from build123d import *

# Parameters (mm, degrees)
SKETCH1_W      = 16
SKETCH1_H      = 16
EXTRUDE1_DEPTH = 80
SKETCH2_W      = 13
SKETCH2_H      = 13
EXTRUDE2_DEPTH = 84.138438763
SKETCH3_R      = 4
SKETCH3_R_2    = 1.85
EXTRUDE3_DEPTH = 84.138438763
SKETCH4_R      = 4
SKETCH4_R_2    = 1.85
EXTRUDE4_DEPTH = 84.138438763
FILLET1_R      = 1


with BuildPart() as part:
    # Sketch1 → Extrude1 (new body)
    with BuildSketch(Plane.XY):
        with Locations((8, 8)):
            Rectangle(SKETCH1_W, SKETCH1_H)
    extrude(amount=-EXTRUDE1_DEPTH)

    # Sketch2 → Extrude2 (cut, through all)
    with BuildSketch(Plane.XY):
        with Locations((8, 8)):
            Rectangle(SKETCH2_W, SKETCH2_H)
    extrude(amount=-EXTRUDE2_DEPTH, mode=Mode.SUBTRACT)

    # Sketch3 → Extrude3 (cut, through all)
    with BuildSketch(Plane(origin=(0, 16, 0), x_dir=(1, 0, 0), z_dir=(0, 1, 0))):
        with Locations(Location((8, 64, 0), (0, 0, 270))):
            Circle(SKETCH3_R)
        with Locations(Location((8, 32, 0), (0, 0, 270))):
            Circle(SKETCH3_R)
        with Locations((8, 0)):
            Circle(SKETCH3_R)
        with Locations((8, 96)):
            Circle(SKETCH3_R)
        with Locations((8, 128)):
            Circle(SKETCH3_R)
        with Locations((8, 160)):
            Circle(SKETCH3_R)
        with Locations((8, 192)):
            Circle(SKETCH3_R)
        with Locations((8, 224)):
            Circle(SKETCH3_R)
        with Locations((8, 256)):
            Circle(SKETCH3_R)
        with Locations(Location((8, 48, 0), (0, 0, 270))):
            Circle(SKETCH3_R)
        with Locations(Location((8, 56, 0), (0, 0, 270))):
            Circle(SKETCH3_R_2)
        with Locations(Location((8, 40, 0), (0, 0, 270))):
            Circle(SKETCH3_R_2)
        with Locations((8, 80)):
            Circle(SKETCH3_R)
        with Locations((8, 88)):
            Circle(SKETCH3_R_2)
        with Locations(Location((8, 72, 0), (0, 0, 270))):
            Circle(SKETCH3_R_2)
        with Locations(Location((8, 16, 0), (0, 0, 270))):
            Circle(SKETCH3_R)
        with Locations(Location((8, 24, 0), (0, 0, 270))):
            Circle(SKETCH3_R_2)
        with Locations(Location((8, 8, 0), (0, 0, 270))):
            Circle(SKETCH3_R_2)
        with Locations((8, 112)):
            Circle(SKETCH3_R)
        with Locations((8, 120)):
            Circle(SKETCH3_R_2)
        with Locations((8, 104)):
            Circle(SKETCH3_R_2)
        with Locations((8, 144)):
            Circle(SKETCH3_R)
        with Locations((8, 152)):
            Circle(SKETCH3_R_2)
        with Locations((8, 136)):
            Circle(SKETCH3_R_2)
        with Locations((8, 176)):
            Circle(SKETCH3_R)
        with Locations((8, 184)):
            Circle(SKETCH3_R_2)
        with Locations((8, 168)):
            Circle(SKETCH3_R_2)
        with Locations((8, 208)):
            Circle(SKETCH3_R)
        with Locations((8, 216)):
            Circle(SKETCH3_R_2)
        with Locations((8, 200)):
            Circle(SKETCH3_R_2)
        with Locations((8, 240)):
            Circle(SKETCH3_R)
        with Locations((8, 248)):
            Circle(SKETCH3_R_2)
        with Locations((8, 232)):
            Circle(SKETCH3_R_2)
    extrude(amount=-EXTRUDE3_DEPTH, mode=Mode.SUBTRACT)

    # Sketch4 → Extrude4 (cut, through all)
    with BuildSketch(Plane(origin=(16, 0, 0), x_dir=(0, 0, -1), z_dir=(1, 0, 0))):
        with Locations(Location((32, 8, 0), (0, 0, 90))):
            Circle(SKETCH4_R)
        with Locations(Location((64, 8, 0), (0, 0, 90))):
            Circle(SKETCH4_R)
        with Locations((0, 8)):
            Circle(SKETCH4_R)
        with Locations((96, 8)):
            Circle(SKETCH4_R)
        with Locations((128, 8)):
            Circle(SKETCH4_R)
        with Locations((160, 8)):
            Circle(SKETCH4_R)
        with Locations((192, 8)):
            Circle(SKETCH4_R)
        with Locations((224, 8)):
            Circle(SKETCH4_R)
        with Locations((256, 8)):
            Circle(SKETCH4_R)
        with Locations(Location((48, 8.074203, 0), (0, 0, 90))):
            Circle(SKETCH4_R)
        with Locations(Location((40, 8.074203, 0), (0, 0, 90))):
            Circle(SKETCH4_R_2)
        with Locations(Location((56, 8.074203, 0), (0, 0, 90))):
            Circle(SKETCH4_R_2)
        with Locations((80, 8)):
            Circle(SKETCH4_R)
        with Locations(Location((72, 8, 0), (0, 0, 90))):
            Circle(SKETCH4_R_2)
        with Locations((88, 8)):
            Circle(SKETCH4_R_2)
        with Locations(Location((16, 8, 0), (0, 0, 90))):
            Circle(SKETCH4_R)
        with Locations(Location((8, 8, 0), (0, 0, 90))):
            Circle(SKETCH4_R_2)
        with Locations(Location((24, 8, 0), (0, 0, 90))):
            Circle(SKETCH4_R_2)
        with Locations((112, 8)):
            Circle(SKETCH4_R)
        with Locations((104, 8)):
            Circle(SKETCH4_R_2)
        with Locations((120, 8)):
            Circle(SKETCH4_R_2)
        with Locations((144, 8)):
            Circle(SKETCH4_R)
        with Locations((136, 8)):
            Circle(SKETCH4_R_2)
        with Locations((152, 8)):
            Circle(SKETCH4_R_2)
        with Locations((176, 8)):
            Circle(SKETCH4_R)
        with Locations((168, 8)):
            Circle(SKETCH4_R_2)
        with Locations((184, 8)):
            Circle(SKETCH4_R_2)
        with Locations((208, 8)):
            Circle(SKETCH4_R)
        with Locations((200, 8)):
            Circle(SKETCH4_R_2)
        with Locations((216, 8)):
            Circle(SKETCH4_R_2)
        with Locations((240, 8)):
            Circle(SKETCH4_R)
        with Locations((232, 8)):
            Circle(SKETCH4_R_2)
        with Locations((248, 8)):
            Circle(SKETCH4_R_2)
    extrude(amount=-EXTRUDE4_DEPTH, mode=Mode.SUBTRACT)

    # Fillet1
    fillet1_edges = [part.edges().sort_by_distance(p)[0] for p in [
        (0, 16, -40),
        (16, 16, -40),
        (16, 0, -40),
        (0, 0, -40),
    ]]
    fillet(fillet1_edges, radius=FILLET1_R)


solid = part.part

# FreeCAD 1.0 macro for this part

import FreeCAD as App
import Part
import Sketcher


def edges_at(feature, points):
    """Names of the edges that pass closest to the given points."""
    edges = feature.Shape.Edges
    near = lambda p: min(range(len(edges)), key=lambda i: edges[i].distToShape(Part.Vertex(*p))[0])
    return sorted({f"Edge{near(p) + 1}" for p in points})

doc = App.newDocument("Part")
body = doc.addObject("PartDesign::Body", "Body")

sketch1 = doc.addObject("Sketcher::SketchObject", "Sketch")
body.addObject(sketch1)
sketch1.AttachmentSupport = (doc.XY_Plane, [""])
sketch1.MapMode = "FlatFace"
sketch1.addGeometry([
    Part.LineSegment(App.Vector(0, 16, 0), App.Vector(0, 0, 0)),
    Part.LineSegment(App.Vector(0, 0, 0), App.Vector(16, 0, 0)),
    Part.LineSegment(App.Vector(16, 0, 0), App.Vector(16, 16, 0)),
    Part.LineSegment(App.Vector(16, 16, 0), App.Vector(0, 16, 0)),
], False)
sketch1.addConstraint([
    Sketcher.Constraint("Coincident", 0, 2, 1, 1),
    Sketcher.Constraint("Coincident", 1, 2, 2, 1),
    Sketcher.Constraint("Coincident", 2, 2, 3, 1),
    Sketcher.Constraint("Coincident", 3, 2, 0, 1),
    Sketcher.Constraint("Vertical", 0),
    Sketcher.Constraint("Horizontal", 1),
    Sketcher.Constraint("Vertical", 2),
    Sketcher.Constraint("Horizontal", 3),
    Sketcher.Constraint("Coincident", 0, 2, -1, 1),
    Sketcher.Constraint("Equal", 3, 0),
    Sketcher.Constraint("DistanceX", 1, 1, 1, 2, 16.0),
])
pad1 = doc.addObject("PartDesign::Pad", "Pad")
body.addObject(pad1)
pad1.Profile = sketch1
pad1.Length = 80
pad1.Reversed = True

sketch2 = doc.addObject("Sketcher::SketchObject", "Sketch001")
body.addObject(sketch2)
sketch2.AttachmentSupport = (doc.XY_Plane, [""])
sketch2.MapMode = "FlatFace"
sketch2.addGeometry([
    Part.LineSegment(App.Vector(1.5, 14.5, 0), App.Vector(1.5, 1.5, 0)),
    Part.LineSegment(App.Vector(1.5, 1.5, 0), App.Vector(14.5, 1.5, 0)),
    Part.LineSegment(App.Vector(14.5, 1.5, 0), App.Vector(14.5, 14.5, 0)),
    Part.LineSegment(App.Vector(14.5, 14.5, 0), App.Vector(1.5, 14.5, 0)),
], False)
sketch2.addConstraint([
    Sketcher.Constraint("Coincident", 0, 2, 1, 1),
    Sketcher.Constraint("Coincident", 1, 2, 2, 1),
    Sketcher.Constraint("Coincident", 2, 2, 3, 1),
    Sketcher.Constraint("Coincident", 3, 2, 0, 1),
    Sketcher.Constraint("Vertical", 0),
    Sketcher.Constraint("Horizontal", 1),
    Sketcher.Constraint("Vertical", 2),
    Sketcher.Constraint("Horizontal", 3),
    Sketcher.Constraint("Equal", 3, 0),
    Sketcher.Constraint("DistanceX", 1, 1, 1, 2, 13.0),
    Sketcher.Constraint("DistanceX", -1, 1, 0, 2, 1.5),
    Sketcher.Constraint("DistanceY", -1, 1, 0, 2, 1.5),
])
pocket1 = doc.addObject("PartDesign::Pocket", "Pocket")
body.addObject(pocket1)
pocket1.Profile = sketch2
pocket1.Type = "ThroughAll"

sketch3 = doc.addObject("Sketcher::SketchObject", "Sketch002")
body.addObject(sketch3)
sketch3.AttachmentSupport = (doc.XZ_Plane, [""])
sketch3.MapMode = "FlatFace"
sketch3.AttachmentOffset = App.Placement(App.Vector(0, 0, -16), App.Rotation())
sketch3.addGeometry([
    Part.Circle(App.Vector(8, -64, 0), App.Vector(0, 0, 1), 4),
    Part.Circle(App.Vector(8, -32, 0), App.Vector(0, 0, 1), 4),
    Part.Circle(App.Vector(8, 0, 0), App.Vector(0, 0, 1), 4),
    Part.Circle(App.Vector(8, -96, 0), App.Vector(0, 0, 1), 4),
    Part.Circle(App.Vector(8, -128, 0), App.Vector(0, 0, 1), 4),
    Part.Circle(App.Vector(8, -160, 0), App.Vector(0, 0, 1), 4),
    Part.Circle(App.Vector(8, -192, 0), App.Vector(0, 0, 1), 4),
    Part.Circle(App.Vector(8, -224, 0), App.Vector(0, 0, 1), 4),
    Part.Circle(App.Vector(8, -256, 0), App.Vector(0, 0, 1), 4),
    Part.Circle(App.Vector(8, -48, 0), App.Vector(0, 0, 1), 4),
    Part.Circle(App.Vector(8, -56, 0), App.Vector(0, 0, 1), 1.85),
    Part.Circle(App.Vector(8, -40, 0), App.Vector(0, 0, 1), 1.85),
    Part.Circle(App.Vector(8, -80, 0), App.Vector(0, 0, 1), 4),
    Part.Circle(App.Vector(8, -88, 0), App.Vector(0, 0, 1), 1.85),
    Part.Circle(App.Vector(8, -72, 0), App.Vector(0, 0, 1), 1.85),
    Part.Circle(App.Vector(8, -16, 0), App.Vector(0, 0, 1), 4),
    Part.Circle(App.Vector(8, -24, 0), App.Vector(0, 0, 1), 1.85),
    Part.Circle(App.Vector(8, -8, 0), App.Vector(0, 0, 1), 1.85),
    Part.Circle(App.Vector(8, -112, 0), App.Vector(0, 0, 1), 4),
    Part.Circle(App.Vector(8, -120, 0), App.Vector(0, 0, 1), 1.85),
    Part.Circle(App.Vector(8, -104, 0), App.Vector(0, 0, 1), 1.85),
    Part.Circle(App.Vector(8, -144, 0), App.Vector(0, 0, 1), 4),
    Part.Circle(App.Vector(8, -152, 0), App.Vector(0, 0, 1), 1.85),
    Part.Circle(App.Vector(8, -136, 0), App.Vector(0, 0, 1), 1.85),
    Part.Circle(App.Vector(8, -176, 0), App.Vector(0, 0, 1), 4),
    Part.Circle(App.Vector(8, -184, 0), App.Vector(0, 0, 1), 1.85),
    Part.Circle(App.Vector(8, -168, 0), App.Vector(0, 0, 1), 1.85),
    Part.Circle(App.Vector(8, -208, 0), App.Vector(0, 0, 1), 4),
    Part.Circle(App.Vector(8, -216, 0), App.Vector(0, 0, 1), 1.85),
    Part.Circle(App.Vector(8, -200, 0), App.Vector(0, 0, 1), 1.85),
    Part.Circle(App.Vector(8, -240, 0), App.Vector(0, 0, 1), 4),
    Part.Circle(App.Vector(8, -248, 0), App.Vector(0, 0, 1), 1.85),
    Part.Circle(App.Vector(8, -232, 0), App.Vector(0, 0, 1), 1.85),
], False)
sketch3.addConstraint([
    Sketcher.Constraint("Equal", 0, 1),
    Sketcher.Constraint("Equal", 1, 2),
    Sketcher.Constraint("Equal", 2, 3),
    Sketcher.Constraint("Equal", 3, 4),
    Sketcher.Constraint("Equal", 4, 5),
    Sketcher.Constraint("Equal", 5, 6),
    Sketcher.Constraint("Equal", 6, 7),
    Sketcher.Constraint("Equal", 7, 8),
    Sketcher.Constraint("Equal", 8, 9),
    Sketcher.Constraint("Equal", 10, 11),
    Sketcher.Constraint("Equal", 9, 12),
    Sketcher.Constraint("Equal", 11, 13),
    Sketcher.Constraint("Equal", 13, 14),
    Sketcher.Constraint("Equal", 12, 15),
    Sketcher.Constraint("Equal", 14, 16),
    Sketcher.Constraint("Equal", 16, 17),
    Sketcher.Constraint("Equal", 15, 18),
    Sketcher.Constraint("Equal", 17, 19),
    Sketcher.Constraint("Equal", 19, 20),
    Sketcher.Constraint("Equal", 18, 21),
    Sketcher.Constraint("Equal", 20, 22),
    Sketcher.Constraint("Equal", 22, 23),
    Sketcher.Constraint("Equal", 21, 24),
    Sketcher.Constraint("Equal", 23, 25),
    Sketcher.Constraint("Equal", 25, 26),
    Sketcher.Constraint("Equal", 24, 27),
    Sketcher.Constraint("Equal", 26, 28),
    Sketcher.Constraint("Equal", 28, 29),
    Sketcher.Constraint("Equal", 27, 30),
    Sketcher.Constraint("Equal", 29, 31),
    Sketcher.Constraint("Equal", 31, 32),
    Sketcher.Constraint("PointOnObject", 2, 3, -1),
    Sketcher.Constraint("Vertical", 0, 3, 1, 3),
    Sketcher.Constraint("Vertical", 1, 3, 2, 3),
    Sketcher.Constraint("Vertical", 2, 3, 3, 3),
    Sketcher.Constraint("Vertical", 3, 3, 4, 3),
    Sketcher.Constraint("Vertical", 4, 3, 5, 3),
    Sketcher.Constraint("Vertical", 5, 3, 6, 3),
    Sketcher.Constraint("Vertical", 6, 3, 7, 3),
    Sketcher.Constraint("Vertical", 7, 3, 8, 3),
    Sketcher.Constraint("Vertical", 8, 3, 9, 3),
    Sketcher.Constraint("Vertical", 9, 3, 10, 3),
    Sketcher.Constraint("Vertical", 10, 3, 11, 3),
    Sketcher.Constraint("Vertical", 11, 3, 12, 3),
    Sketcher.Constraint("Vertical", 12, 3, 13, 3),
    Sketcher.Constraint("Vertical", 13, 3, 14, 3),
    Sketcher.Constraint("Vertical", 14, 3, 15, 3),
    Sketcher.Constraint("Vertical", 15, 3, 16, 3),
    Sketcher.Constraint("Vertical", 16, 3, 17, 3),
    Sketcher.Constraint("Vertical", 17, 3, 18, 3),
    Sketcher.Constraint("Vertical", 18, 3, 19, 3),
    Sketcher.Constraint("Vertical", 19, 3, 20, 3),
    Sketcher.Constraint("Vertical", 20, 3, 21, 3),
    Sketcher.Constraint("Vertical", 21, 3, 22, 3),
    Sketcher.Constraint("Vertical", 22, 3, 23, 3),
    Sketcher.Constraint("Vertical", 23, 3, 24, 3),
    Sketcher.Constraint("Vertical", 24, 3, 25, 3),
    Sketcher.Constraint("Vertical", 25, 3, 26, 3),
    Sketcher.Constraint("Vertical", 26, 3, 27, 3),
    Sketcher.Constraint("Vertical", 27, 3, 28, 3),
    Sketcher.Constraint("Vertical", 28, 3, 29, 3),
    Sketcher.Constraint("Vertical", 29, 3, 30, 3),
    Sketcher.Constraint("Vertical", 30, 3, 31, 3),
    Sketcher.Constraint("Vertical", 31, 3, 32, 3),
    Sketcher.Constraint("Diameter", 0, 8.0),
    Sketcher.Constraint("Diameter", 10, 3.7),
    Sketcher.Constraint("DistanceX", -1, 1, 0, 3, 8.0),
    Sketcher.Constraint("DistanceY", 0, 3, -1, 1, 64.0),
    Sketcher.Constraint("DistanceY", 1, 3, -1, 1, 32.0),
    Sketcher.Constraint("DistanceY", 3, 3, -1, 1, 96.0),
    Sketcher.Constraint("DistanceY", 4, 3, -1, 1, 128.0),
    Sketcher.Constraint("DistanceY", 5, 3, -1, 1, 160.0),
    Sketcher.Constraint("DistanceY", 6, 3, -1, 1, 192.0),
    Sketcher.Constraint("DistanceY", 7, 3, -1, 1, 224.0),
    Sketcher.Constraint("DistanceY", 8, 3, -1, 1, 256.0),
    Sketcher.Constraint("DistanceY", 9, 3, -1, 1, 48.0),
    Sketcher.Constraint("DistanceY", 10, 3, -1, 1, 56.0),
    Sketcher.Constraint("DistanceY", 11, 3, -1, 1, 40.0),
    Sketcher.Constraint("DistanceY", 12, 3, -1, 1, 80.0),
    Sketcher.Constraint("DistanceY", 13, 3, -1, 1, 88.0),
    Sketcher.Constraint("DistanceY", 14, 3, -1, 1, 72.0),
    Sketcher.Constraint("DistanceY", 15, 3, -1, 1, 16.0),
    Sketcher.Constraint("DistanceY", 16, 3, -1, 1, 24.0),
    Sketcher.Constraint("DistanceY", 17, 3, -1, 1, 8.0),
    Sketcher.Constraint("DistanceY", 18, 3, -1, 1, 112.0),
    Sketcher.Constraint("DistanceY", 19, 3, -1, 1, 120.0),
    Sketcher.Constraint("DistanceY", 20, 3, -1, 1, 104.0),
    Sketcher.Constraint("DistanceY", 21, 3, -1, 1, 144.0),
    Sketcher.Constraint("DistanceY", 22, 3, -1, 1, 152.0),
    Sketcher.Constraint("DistanceY", 23, 3, -1, 1, 136.0),
    Sketcher.Constraint("DistanceY", 24, 3, -1, 1, 176.0),
    Sketcher.Constraint("DistanceY", 25, 3, -1, 1, 184.0),
    Sketcher.Constraint("DistanceY", 26, 3, -1, 1, 168.0),
    Sketcher.Constraint("DistanceY", 27, 3, -1, 1, 208.0),
    Sketcher.Constraint("DistanceY", 28, 3, -1, 1, 216.0),
    Sketcher.Constraint("DistanceY", 29, 3, -1, 1, 200.0),
    Sketcher.Constraint("DistanceY", 30, 3, -1, 1, 240.0),
    Sketcher.Constraint("DistanceY", 31, 3, -1, 1, 248.0),
    Sketcher.Constraint("DistanceY", 32, 3, -1, 1, 232.0),
])
pocket2 = doc.addObject("PartDesign::Pocket", "Pocket001")
body.addObject(pocket2)
pocket2.Profile = sketch3
pocket2.Type = "ThroughAll"
pocket2.Reversed = True

sketch4 = doc.addObject("Sketcher::SketchObject", "Sketch003")
body.addObject(sketch4)
sketch4.AttachmentSupport = (doc.YZ_Plane, [""])
sketch4.MapMode = "FlatFace"
sketch4.AttachmentOffset = App.Placement(App.Vector(0, 0, 16), App.Rotation())
sketch4.addGeometry([
    Part.Circle(App.Vector(8, -32, 0), App.Vector(0, 0, 1), 4),
    Part.Circle(App.Vector(8, -64, 0), App.Vector(0, 0, 1), 4),
    Part.Circle(App.Vector(8, 0, 0), App.Vector(0, 0, 1), 4),
    Part.Circle(App.Vector(8, -96, 0), App.Vector(0, 0, 1), 4),
    Part.Circle(App.Vector(8, -128, 0), App.Vector(0, 0, 1), 4),
    Part.Circle(App.Vector(8, -160, 0), App.Vector(0, 0, 1), 4),
    Part.Circle(App.Vector(8, -192, 0), App.Vector(0, 0, 1), 4),
    Part.Circle(App.Vector(8, -224, 0), App.Vector(0, 0, 1), 4),
    Part.Circle(App.Vector(8, -256, 0), App.Vector(0, 0, 1), 4),
    Part.Circle(App.Vector(8.074203, -48, 0), App.Vector(0, 0, 1), 4),
    Part.Circle(App.Vector(8.074203, -40, 0), App.Vector(0, 0, 1), 1.85),
    Part.Circle(App.Vector(8.074203, -56, 0), App.Vector(0, 0, 1), 1.85),
    Part.Circle(App.Vector(8, -80, 0), App.Vector(0, 0, 1), 4),
    Part.Circle(App.Vector(8, -72, 0), App.Vector(0, 0, 1), 1.85),
    Part.Circle(App.Vector(8, -88, 0), App.Vector(0, 0, 1), 1.85),
    Part.Circle(App.Vector(8, -16, 0), App.Vector(0, 0, 1), 4),
    Part.Circle(App.Vector(8, -8, 0), App.Vector(0, 0, 1), 1.85),
    Part.Circle(App.Vector(8, -24, 0), App.Vector(0, 0, 1), 1.85),
    Part.Circle(App.Vector(8, -112, 0), App.Vector(0, 0, 1), 4),
    Part.Circle(App.Vector(8, -104, 0), App.Vector(0, 0, 1), 1.85),
    Part.Circle(App.Vector(8, -120, 0), App.Vector(0, 0, 1), 1.85),
    Part.Circle(App.Vector(8, -144, 0), App.Vector(0, 0, 1), 4),
    Part.Circle(App.Vector(8, -136, 0), App.Vector(0, 0, 1), 1.85),
    Part.Circle(App.Vector(8, -152, 0), App.Vector(0, 0, 1), 1.85),
    Part.Circle(App.Vector(8, -176, 0), App.Vector(0, 0, 1), 4),
    Part.Circle(App.Vector(8, -168, 0), App.Vector(0, 0, 1), 1.85),
    Part.Circle(App.Vector(8, -184, 0), App.Vector(0, 0, 1), 1.85),
    Part.Circle(App.Vector(8, -208, 0), App.Vector(0, 0, 1), 4),
    Part.Circle(App.Vector(8, -200, 0), App.Vector(0, 0, 1), 1.85),
    Part.Circle(App.Vector(8, -216, 0), App.Vector(0, 0, 1), 1.85),
    Part.Circle(App.Vector(8, -240, 0), App.Vector(0, 0, 1), 4),
    Part.Circle(App.Vector(8, -232, 0), App.Vector(0, 0, 1), 1.85),
    Part.Circle(App.Vector(8, -248, 0), App.Vector(0, 0, 1), 1.85),
], False)
sketch4.addConstraint([
    Sketcher.Constraint("Equal", 0, 1),
    Sketcher.Constraint("Equal", 1, 2),
    Sketcher.Constraint("Equal", 2, 3),
    Sketcher.Constraint("Equal", 3, 4),
    Sketcher.Constraint("Equal", 4, 5),
    Sketcher.Constraint("Equal", 5, 6),
    Sketcher.Constraint("Equal", 6, 7),
    Sketcher.Constraint("Equal", 7, 8),
    Sketcher.Constraint("Equal", 8, 9),
    Sketcher.Constraint("Equal", 10, 11),
    Sketcher.Constraint("Equal", 9, 12),
    Sketcher.Constraint("Equal", 11, 13),
    Sketcher.Constraint("Equal", 13, 14),
    Sketcher.Constraint("Equal", 12, 15),
    Sketcher.Constraint("Equal", 14, 16),
    Sketcher.Constraint("Equal", 16, 17),
    Sketcher.Constraint("Equal", 15, 18),
    Sketcher.Constraint("Equal", 17, 19),
    Sketcher.Constraint("Equal", 19, 20),
    Sketcher.Constraint("Equal", 18, 21),
    Sketcher.Constraint("Equal", 20, 22),
    Sketcher.Constraint("Equal", 22, 23),
    Sketcher.Constraint("Equal", 21, 24),
    Sketcher.Constraint("Equal", 23, 25),
    Sketcher.Constraint("Equal", 25, 26),
    Sketcher.Constraint("Equal", 24, 27),
    Sketcher.Constraint("Equal", 26, 28),
    Sketcher.Constraint("Equal", 28, 29),
    Sketcher.Constraint("Equal", 27, 30),
    Sketcher.Constraint("Equal", 29, 31),
    Sketcher.Constraint("Equal", 31, 32),
    Sketcher.Constraint("PointOnObject", 2, 3, -1),
    Sketcher.Constraint("Vertical", 0, 3, 1, 3),
    Sketcher.Constraint("Vertical", 1, 3, 2, 3),
    Sketcher.Constraint("Vertical", 2, 3, 3, 3),
    Sketcher.Constraint("Vertical", 3, 3, 4, 3),
    Sketcher.Constraint("Vertical", 4, 3, 5, 3),
    Sketcher.Constraint("Vertical", 5, 3, 6, 3),
    Sketcher.Constraint("Vertical", 6, 3, 7, 3),
    Sketcher.Constraint("Vertical", 7, 3, 8, 3),
    Sketcher.Constraint("Vertical", 9, 3, 10, 3),
    Sketcher.Constraint("Vertical", 10, 3, 11, 3),
    Sketcher.Constraint("Vertical", 8, 3, 12, 3),
    Sketcher.Constraint("Vertical", 12, 3, 13, 3),
    Sketcher.Constraint("Vertical", 13, 3, 14, 3),
    Sketcher.Constraint("Vertical", 14, 3, 15, 3),
    Sketcher.Constraint("Vertical", 15, 3, 16, 3),
    Sketcher.Constraint("Vertical", 16, 3, 17, 3),
    Sketcher.Constraint("Vertical", 17, 3, 18, 3),
    Sketcher.Constraint("Vertical", 18, 3, 19, 3),
    Sketcher.Constraint("Vertical", 19, 3, 20, 3),
    Sketcher.Constraint("Vertical", 20, 3, 21, 3),
    Sketcher.Constraint("Vertical", 21, 3, 22, 3),
    Sketcher.Constraint("Vertical", 22, 3, 23, 3),
    Sketcher.Constraint("Vertical", 23, 3, 24, 3),
    Sketcher.Constraint("Vertical", 24, 3, 25, 3),
    Sketcher.Constraint("Vertical", 25, 3, 26, 3),
    Sketcher.Constraint("Vertical", 26, 3, 27, 3),
    Sketcher.Constraint("Vertical", 27, 3, 28, 3),
    Sketcher.Constraint("Vertical", 28, 3, 29, 3),
    Sketcher.Constraint("Vertical", 29, 3, 30, 3),
    Sketcher.Constraint("Vertical", 30, 3, 31, 3),
    Sketcher.Constraint("Vertical", 31, 3, 32, 3),
    Sketcher.Constraint("Diameter", 0, 8.0),
    Sketcher.Constraint("Diameter", 10, 3.7),
    Sketcher.Constraint("DistanceX", -1, 1, 0, 3, 8.0),
    Sketcher.Constraint("DistanceY", 0, 3, -1, 1, 32.0),
    Sketcher.Constraint("DistanceY", 1, 3, -1, 1, 64.0),
    Sketcher.Constraint("DistanceY", 3, 3, -1, 1, 96.0),
    Sketcher.Constraint("DistanceY", 4, 3, -1, 1, 128.0),
    Sketcher.Constraint("DistanceY", 5, 3, -1, 1, 160.0),
    Sketcher.Constraint("DistanceY", 6, 3, -1, 1, 192.0),
    Sketcher.Constraint("DistanceY", 7, 3, -1, 1, 224.0),
    Sketcher.Constraint("DistanceY", 8, 3, -1, 1, 256.0),
    Sketcher.Constraint("DistanceY", 9, 3, -1, 1, 48.0),
    Sketcher.Constraint("DistanceY", 10, 3, -1, 1, 40.0),
    Sketcher.Constraint("DistanceY", 11, 3, -1, 1, 56.0),
    Sketcher.Constraint("DistanceY", 12, 3, -1, 1, 80.0),
    Sketcher.Constraint("DistanceY", 13, 3, -1, 1, 72.0),
    Sketcher.Constraint("DistanceY", 14, 3, -1, 1, 88.0),
    Sketcher.Constraint("DistanceY", 15, 3, -1, 1, 16.0),
    Sketcher.Constraint("DistanceY", 16, 3, -1, 1, 8.0),
    Sketcher.Constraint("DistanceY", 17, 3, -1, 1, 24.0),
    Sketcher.Constraint("DistanceY", 18, 3, -1, 1, 112.0),
    Sketcher.Constraint("DistanceY", 19, 3, -1, 1, 104.0),
    Sketcher.Constraint("DistanceY", 20, 3, -1, 1, 120.0),
    Sketcher.Constraint("DistanceY", 21, 3, -1, 1, 144.0),
    Sketcher.Constraint("DistanceY", 22, 3, -1, 1, 136.0),
    Sketcher.Constraint("DistanceY", 23, 3, -1, 1, 152.0),
    Sketcher.Constraint("DistanceY", 24, 3, -1, 1, 176.0),
    Sketcher.Constraint("DistanceY", 25, 3, -1, 1, 168.0),
    Sketcher.Constraint("DistanceY", 26, 3, -1, 1, 184.0),
    Sketcher.Constraint("DistanceY", 27, 3, -1, 1, 208.0),
    Sketcher.Constraint("DistanceY", 28, 3, -1, 1, 200.0),
    Sketcher.Constraint("DistanceY", 29, 3, -1, 1, 216.0),
    Sketcher.Constraint("DistanceY", 30, 3, -1, 1, 240.0),
    Sketcher.Constraint("DistanceY", 31, 3, -1, 1, 232.0),
    Sketcher.Constraint("DistanceY", 32, 3, -1, 1, 248.0),
    Sketcher.Constraint("DistanceX", -1, 1, 9, 3, 8.074203),
])
pocket3 = doc.addObject("PartDesign::Pocket", "Pocket002")
body.addObject(pocket3)
pocket3.Profile = sketch4
pocket3.Type = "ThroughAll"
doc.recompute()

fillet = doc.addObject("PartDesign::Fillet", "Fillet")
body.addObject(fillet)
fillet.Base = (pocket3, edges_at(pocket3, [
    (0, 16, -40),
    (16, 16, -40),
    (16, 0, -40),
    (0, 0, -40),
]))
fillet.Radius = 1

doc.recompute()
